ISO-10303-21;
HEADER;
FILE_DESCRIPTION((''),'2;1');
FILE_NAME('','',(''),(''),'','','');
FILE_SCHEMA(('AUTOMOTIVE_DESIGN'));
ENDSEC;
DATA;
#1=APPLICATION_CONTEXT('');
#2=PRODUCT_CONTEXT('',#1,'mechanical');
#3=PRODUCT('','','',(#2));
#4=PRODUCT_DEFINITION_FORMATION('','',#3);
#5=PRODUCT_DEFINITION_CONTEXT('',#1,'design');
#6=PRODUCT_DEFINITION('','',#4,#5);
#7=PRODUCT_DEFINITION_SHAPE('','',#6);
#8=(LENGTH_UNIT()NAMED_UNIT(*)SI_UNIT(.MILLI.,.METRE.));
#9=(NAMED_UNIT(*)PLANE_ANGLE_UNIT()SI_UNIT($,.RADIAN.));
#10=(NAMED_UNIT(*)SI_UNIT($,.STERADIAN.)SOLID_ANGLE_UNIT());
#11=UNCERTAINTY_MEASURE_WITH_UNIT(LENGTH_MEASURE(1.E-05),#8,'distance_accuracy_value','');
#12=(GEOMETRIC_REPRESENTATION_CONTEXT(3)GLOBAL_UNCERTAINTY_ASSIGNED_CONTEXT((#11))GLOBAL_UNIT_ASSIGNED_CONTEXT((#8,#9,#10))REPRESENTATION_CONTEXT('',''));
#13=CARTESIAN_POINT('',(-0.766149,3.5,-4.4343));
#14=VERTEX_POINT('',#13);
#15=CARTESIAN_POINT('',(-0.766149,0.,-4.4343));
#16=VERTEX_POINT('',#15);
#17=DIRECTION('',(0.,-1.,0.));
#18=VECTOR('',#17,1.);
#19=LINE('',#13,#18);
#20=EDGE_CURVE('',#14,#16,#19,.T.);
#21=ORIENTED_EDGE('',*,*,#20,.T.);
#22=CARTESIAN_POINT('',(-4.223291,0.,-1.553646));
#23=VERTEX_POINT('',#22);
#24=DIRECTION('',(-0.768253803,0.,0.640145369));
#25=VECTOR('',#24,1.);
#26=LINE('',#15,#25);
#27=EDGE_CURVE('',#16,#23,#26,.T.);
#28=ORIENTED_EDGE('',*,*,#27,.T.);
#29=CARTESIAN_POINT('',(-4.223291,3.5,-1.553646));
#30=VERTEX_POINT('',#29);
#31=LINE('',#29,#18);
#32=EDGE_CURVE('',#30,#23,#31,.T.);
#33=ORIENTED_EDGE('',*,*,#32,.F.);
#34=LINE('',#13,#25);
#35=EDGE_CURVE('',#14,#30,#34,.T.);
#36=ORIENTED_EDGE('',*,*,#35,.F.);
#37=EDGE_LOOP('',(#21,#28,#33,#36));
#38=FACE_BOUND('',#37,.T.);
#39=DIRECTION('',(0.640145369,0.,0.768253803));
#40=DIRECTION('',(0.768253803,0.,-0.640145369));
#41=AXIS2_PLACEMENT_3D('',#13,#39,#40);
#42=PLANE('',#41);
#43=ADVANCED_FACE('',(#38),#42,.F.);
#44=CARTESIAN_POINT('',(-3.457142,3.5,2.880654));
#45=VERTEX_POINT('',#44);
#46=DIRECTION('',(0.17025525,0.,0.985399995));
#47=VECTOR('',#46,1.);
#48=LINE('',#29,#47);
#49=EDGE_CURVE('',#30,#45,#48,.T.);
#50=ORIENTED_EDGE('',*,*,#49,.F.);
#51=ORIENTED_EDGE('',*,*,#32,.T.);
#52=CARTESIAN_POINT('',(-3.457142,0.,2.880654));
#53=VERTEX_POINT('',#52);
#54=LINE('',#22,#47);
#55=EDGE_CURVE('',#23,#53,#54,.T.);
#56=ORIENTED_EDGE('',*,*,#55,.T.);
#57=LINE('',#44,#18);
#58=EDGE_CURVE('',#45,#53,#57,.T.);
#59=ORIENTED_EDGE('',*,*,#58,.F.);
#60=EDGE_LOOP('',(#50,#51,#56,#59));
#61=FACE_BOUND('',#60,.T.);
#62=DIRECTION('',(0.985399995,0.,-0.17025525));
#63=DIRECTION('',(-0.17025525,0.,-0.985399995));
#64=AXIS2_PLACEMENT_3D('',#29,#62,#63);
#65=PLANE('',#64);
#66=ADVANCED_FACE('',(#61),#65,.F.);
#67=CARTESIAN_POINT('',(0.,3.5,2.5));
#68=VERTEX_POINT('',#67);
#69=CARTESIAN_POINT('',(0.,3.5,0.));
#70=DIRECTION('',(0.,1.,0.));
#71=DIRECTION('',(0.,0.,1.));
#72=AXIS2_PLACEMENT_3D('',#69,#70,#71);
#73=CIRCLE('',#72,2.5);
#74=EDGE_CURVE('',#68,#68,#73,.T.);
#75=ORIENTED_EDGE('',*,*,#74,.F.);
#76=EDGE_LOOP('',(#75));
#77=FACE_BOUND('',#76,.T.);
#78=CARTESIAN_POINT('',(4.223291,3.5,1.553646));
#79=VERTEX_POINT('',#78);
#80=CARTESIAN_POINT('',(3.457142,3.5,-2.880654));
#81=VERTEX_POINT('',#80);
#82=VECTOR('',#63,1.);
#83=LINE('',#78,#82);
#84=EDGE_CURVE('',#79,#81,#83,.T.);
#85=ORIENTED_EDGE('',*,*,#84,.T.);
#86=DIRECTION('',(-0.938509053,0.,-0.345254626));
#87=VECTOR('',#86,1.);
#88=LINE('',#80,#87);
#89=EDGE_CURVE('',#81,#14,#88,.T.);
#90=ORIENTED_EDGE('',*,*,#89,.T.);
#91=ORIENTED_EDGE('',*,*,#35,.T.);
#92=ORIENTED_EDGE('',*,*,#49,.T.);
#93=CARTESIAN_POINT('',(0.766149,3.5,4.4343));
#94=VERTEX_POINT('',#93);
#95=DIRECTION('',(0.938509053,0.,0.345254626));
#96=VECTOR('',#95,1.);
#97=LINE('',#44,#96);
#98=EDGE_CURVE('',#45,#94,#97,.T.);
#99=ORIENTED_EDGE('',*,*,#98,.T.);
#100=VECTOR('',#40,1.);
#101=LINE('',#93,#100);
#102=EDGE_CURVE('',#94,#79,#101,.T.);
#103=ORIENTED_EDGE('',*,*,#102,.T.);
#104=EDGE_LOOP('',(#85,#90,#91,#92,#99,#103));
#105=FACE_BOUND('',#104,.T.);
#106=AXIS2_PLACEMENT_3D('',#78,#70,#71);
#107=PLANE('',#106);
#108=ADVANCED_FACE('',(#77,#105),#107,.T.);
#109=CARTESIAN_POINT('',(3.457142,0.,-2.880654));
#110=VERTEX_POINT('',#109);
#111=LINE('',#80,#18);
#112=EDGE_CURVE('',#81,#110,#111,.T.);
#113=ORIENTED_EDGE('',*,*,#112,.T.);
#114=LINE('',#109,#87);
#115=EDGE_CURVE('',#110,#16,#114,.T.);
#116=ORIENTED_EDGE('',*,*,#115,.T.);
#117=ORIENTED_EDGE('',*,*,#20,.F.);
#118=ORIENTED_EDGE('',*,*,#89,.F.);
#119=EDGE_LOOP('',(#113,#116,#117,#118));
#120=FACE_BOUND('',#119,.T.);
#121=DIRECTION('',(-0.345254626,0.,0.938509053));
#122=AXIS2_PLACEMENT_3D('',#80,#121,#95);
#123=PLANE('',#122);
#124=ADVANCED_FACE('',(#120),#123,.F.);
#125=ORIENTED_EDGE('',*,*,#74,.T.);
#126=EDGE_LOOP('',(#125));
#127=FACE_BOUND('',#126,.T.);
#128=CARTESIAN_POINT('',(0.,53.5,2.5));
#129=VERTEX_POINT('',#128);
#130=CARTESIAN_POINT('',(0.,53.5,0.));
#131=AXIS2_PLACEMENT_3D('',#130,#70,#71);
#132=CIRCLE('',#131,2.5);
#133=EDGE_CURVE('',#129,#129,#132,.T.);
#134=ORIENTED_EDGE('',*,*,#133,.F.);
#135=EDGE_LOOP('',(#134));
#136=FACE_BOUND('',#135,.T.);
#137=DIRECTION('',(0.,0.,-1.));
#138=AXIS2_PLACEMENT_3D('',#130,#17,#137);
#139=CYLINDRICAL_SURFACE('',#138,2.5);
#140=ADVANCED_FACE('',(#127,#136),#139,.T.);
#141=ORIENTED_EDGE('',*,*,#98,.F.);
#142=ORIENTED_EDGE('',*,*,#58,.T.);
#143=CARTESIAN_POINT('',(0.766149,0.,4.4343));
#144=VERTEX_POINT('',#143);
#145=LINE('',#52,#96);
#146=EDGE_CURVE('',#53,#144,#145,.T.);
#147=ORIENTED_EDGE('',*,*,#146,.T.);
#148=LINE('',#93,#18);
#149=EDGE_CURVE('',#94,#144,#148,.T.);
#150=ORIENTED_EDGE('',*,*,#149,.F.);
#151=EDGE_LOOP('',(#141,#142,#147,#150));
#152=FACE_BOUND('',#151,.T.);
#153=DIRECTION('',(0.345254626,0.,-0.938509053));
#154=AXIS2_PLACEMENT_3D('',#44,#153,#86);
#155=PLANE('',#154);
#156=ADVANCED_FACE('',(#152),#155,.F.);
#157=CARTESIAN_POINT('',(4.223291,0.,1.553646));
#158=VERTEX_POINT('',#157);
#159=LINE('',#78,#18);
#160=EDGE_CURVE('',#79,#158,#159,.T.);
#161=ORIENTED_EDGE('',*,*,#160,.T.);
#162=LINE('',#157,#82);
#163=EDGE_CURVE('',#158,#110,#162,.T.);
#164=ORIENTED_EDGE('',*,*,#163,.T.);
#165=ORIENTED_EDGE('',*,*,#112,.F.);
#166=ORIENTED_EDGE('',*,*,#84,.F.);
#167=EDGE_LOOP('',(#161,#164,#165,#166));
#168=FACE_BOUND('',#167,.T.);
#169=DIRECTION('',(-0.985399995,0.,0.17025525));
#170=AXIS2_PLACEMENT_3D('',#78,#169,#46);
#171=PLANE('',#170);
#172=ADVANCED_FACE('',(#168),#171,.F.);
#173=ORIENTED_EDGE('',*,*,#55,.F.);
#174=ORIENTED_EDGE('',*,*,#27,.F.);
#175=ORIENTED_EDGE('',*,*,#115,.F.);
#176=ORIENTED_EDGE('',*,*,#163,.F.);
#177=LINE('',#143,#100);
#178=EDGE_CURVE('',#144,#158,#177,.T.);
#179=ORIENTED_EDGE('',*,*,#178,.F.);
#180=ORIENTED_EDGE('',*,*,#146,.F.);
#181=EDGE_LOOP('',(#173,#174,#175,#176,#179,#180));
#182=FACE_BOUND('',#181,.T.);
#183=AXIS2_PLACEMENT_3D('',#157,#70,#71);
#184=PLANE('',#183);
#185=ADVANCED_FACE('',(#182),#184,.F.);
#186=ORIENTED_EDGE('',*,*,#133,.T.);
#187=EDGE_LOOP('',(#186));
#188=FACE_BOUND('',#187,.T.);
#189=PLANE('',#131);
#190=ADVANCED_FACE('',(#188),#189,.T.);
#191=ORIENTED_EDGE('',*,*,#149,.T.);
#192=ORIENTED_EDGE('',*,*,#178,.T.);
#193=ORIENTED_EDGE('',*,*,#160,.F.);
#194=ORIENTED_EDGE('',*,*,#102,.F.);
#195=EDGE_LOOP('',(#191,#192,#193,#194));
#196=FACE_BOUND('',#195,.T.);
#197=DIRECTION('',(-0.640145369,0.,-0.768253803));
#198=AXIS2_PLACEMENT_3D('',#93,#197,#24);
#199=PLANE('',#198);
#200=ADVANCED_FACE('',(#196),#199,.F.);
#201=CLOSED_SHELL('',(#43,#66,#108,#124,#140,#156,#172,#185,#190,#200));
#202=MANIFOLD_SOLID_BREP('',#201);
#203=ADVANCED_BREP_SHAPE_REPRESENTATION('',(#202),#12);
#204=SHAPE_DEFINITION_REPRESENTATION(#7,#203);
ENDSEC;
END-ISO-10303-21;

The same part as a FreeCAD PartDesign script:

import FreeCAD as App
import Part
import Sketcher

V = App.Vector

doc = App.newDocument("Part")
body = doc.addObject("PartDesign::Body", "Body")

# Sketch on XZ plane
sketch1 = body.newObject("Sketcher::SketchObject", "Sketch")
sketch1.AttachmentSupport = (doc.getObject("XZ_Plane"), [""])
sketch1.MapMode = "FlatFace"
sketch1.addGeometry([
    Part.LineSegment(V(4.223291, 1.553646, 0), V(3.457142, -2.880654, 0)),  # 0
    Part.LineSegment(V(3.457142, -2.880654, 0), V(-0.766149, -4.4343, 0)),  # 1
    Part.LineSegment(V(-0.766149, -4.4343, 0), V(-4.223291, -1.553646, 0)),  # 2
    Part.LineSegment(V(-4.223291, -1.553646, 0), V(-3.457142, 2.880654, 0)),  # 3
    Part.LineSegment(V(-3.457142, 2.880654, 0), V(0.766149, 4.4343, 0)),  # 4
    Part.LineSegment(V(0.766149, 4.4343, 0), V(4.223291, 1.553646, 0)),  # 5
], False)
sketch1.addConstraint([
    Sketcher.Constraint("Coincident", 0, 2, 1, 1),
    Sketcher.Constraint("Coincident", 1, 2, 2, 1),
    Sketcher.Constraint("Coincident", 2, 2, 3, 1),
    Sketcher.Constraint("Coincident", 3, 2, 4, 1),
    Sketcher.Constraint("Coincident", 4, 2, 5, 1),
    Sketcher.Constraint("Coincident", 5, 2, 0, 1),
    Sketcher.Constraint("Symmetric", 0, 2, 3, 2, -1, 1),
    Sketcher.Constraint("Symmetric", 1, 2, 4, 2, -1, 1),
    Sketcher.Constraint("Symmetric", 2, 2, 5, 2, -1, 1),
    Sketcher.Constraint("Equal", 0, 1),
    Sketcher.Constraint("Equal", 1, 2),
    Sketcher.Constraint("Distance", 0, 4.5),
    Sketcher.Constraint("DistanceY", 1, 2, -1, 1, 4.4343),
    Sketcher.Constraint("DistanceY", 2, 2, 3, 2, 4.4343),
    Sketcher.Constraint("DistanceX", 1, 2, -1, 1, 0.766149),
])
pad1 = body.newObject("PartDesign::Pad", "Pad")
pad1.Profile = sketch1
pad1.Length = 3.5
pad1.Reversed = True

# Sketch on XZ plane
sketch2 = body.newObject("Sketcher::SketchObject", "Sketch001")
sketch2.AttachmentSupport = (doc.getObject("XZ_Plane"), [""])
sketch2.MapMode = "FlatFace"
sketch2.AttachmentOffset = App.Placement(V(0, 0, -3.5), App.Rotation())
sketch2.addGeometry(Part.Circle(V(0, 0, 0), V(0, 0, 1), 2.5), False)
sketch2.addConstraint([
    Sketcher.Constraint("Coincident", 0, 3, -1, 1),
    Sketcher.Constraint("Diameter", 0, 5.0),
])
pad2 = body.newObject("PartDesign::Pad", "Pad001")
pad2.Profile = sketch2
pad2.Length = 50
pad2.Reversed = True

doc.recompute()
